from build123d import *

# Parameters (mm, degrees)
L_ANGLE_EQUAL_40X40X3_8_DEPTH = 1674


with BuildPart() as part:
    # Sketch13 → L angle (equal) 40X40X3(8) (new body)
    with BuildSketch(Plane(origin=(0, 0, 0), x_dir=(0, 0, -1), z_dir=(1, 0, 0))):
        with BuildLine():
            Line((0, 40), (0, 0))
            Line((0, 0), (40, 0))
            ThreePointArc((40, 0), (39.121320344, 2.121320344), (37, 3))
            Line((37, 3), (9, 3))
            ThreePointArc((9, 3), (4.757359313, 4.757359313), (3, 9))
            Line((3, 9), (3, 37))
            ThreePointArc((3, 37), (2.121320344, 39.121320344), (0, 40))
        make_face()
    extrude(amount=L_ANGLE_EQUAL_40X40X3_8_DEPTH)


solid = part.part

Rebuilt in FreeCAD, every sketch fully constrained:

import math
import FreeCAD as App
import Part
import Sketcher

V = App.Vector
Q = App.Units.Quantity

doc = App.newDocument("Part")
body = doc.addObject("PartDesign::Body", "Body")

# Sketch on YZ plane
sketch1 = body.newObject("Sketcher::SketchObject", "Sketch")
sketch1.AttachmentSupport = (doc.getObject("YZ_Plane"), [""])
sketch1.MapMode = "FlatFace"
sketch1.addGeometry([
    Part.LineSegment(V(40, 0, 0), V(0, 0, 0)),  # 0
    Part.LineSegment(V(0, 0, 0), V(0, -40, 0)),  # 1
    Part.ArcOfCircle(Part.Circle(V(0, -37, 0), V(0, 0, 1), 3), math.radians(-90), math.radians(0)),  # 2
    Part.LineSegment(V(3, -37, 0), V(3, -9, 0)),  # 3
    Part.ArcOfCircle(Part.Circle(V(9, -9, 0), V(0, 0, 1), 6), math.radians(90), math.radians(180)),  # 4
    Part.LineSegment(V(9, -3, 0), V(37, -3, 0)),  # 5
    Part.ArcOfCircle(Part.Circle(V(37, 0, 0), V(0, 0, 1), 3), math.radians(-90), math.radians(0)),  # 6
], False)
sketch1.addConstraint([
    Sketcher.Constraint("Coincident", 0, 2, 1, 1),
    Sketcher.Constraint("Coincident", 1, 2, 2, 1),
    Sketcher.Constraint("Tangent", 2, 2, 3, 1),
    Sketcher.Constraint("Tangent", 3, 2, 4, 2),
    Sketcher.Constraint("Tangent", 4, 1, 5, 1),
    Sketcher.Constraint("Tangent", 5, 2, 6, 1),
    Sketcher.Constraint("Coincident", 6, 2, 0, 1),
    Sketcher.Constraint("Horizontal", 0),
    Sketcher.Constraint("Vertical", 1),
    Sketcher.Constraint("Vertical", 3),
    Sketcher.Constraint("Horizontal", 5),
    Sketcher.Constraint("Coincident", 0, 2, -1, 1),
    Sketcher.Constraint("Equal", 2, 6),
    Sketcher.Constraint("PointOnObject", 2, 3, -2),
    Sketcher.Constraint("PointOnObject", 6, 3, -1),
    Sketcher.Constraint("Equal", 0, 1),
    Sketcher.Constraint("Radius", 2, Q("3 mm")),
    Sketcher.Constraint("Radius", 4, Q("6 mm")),
    Sketcher.Constraint("DistanceX", 0, 2, 0, 1, Q("40 mm")),
])
pad1 = body.newObject("PartDesign::Pad", "Pad")
pad1.Profile = sketch1
pad1.Length = 1674

doc.recompute()
